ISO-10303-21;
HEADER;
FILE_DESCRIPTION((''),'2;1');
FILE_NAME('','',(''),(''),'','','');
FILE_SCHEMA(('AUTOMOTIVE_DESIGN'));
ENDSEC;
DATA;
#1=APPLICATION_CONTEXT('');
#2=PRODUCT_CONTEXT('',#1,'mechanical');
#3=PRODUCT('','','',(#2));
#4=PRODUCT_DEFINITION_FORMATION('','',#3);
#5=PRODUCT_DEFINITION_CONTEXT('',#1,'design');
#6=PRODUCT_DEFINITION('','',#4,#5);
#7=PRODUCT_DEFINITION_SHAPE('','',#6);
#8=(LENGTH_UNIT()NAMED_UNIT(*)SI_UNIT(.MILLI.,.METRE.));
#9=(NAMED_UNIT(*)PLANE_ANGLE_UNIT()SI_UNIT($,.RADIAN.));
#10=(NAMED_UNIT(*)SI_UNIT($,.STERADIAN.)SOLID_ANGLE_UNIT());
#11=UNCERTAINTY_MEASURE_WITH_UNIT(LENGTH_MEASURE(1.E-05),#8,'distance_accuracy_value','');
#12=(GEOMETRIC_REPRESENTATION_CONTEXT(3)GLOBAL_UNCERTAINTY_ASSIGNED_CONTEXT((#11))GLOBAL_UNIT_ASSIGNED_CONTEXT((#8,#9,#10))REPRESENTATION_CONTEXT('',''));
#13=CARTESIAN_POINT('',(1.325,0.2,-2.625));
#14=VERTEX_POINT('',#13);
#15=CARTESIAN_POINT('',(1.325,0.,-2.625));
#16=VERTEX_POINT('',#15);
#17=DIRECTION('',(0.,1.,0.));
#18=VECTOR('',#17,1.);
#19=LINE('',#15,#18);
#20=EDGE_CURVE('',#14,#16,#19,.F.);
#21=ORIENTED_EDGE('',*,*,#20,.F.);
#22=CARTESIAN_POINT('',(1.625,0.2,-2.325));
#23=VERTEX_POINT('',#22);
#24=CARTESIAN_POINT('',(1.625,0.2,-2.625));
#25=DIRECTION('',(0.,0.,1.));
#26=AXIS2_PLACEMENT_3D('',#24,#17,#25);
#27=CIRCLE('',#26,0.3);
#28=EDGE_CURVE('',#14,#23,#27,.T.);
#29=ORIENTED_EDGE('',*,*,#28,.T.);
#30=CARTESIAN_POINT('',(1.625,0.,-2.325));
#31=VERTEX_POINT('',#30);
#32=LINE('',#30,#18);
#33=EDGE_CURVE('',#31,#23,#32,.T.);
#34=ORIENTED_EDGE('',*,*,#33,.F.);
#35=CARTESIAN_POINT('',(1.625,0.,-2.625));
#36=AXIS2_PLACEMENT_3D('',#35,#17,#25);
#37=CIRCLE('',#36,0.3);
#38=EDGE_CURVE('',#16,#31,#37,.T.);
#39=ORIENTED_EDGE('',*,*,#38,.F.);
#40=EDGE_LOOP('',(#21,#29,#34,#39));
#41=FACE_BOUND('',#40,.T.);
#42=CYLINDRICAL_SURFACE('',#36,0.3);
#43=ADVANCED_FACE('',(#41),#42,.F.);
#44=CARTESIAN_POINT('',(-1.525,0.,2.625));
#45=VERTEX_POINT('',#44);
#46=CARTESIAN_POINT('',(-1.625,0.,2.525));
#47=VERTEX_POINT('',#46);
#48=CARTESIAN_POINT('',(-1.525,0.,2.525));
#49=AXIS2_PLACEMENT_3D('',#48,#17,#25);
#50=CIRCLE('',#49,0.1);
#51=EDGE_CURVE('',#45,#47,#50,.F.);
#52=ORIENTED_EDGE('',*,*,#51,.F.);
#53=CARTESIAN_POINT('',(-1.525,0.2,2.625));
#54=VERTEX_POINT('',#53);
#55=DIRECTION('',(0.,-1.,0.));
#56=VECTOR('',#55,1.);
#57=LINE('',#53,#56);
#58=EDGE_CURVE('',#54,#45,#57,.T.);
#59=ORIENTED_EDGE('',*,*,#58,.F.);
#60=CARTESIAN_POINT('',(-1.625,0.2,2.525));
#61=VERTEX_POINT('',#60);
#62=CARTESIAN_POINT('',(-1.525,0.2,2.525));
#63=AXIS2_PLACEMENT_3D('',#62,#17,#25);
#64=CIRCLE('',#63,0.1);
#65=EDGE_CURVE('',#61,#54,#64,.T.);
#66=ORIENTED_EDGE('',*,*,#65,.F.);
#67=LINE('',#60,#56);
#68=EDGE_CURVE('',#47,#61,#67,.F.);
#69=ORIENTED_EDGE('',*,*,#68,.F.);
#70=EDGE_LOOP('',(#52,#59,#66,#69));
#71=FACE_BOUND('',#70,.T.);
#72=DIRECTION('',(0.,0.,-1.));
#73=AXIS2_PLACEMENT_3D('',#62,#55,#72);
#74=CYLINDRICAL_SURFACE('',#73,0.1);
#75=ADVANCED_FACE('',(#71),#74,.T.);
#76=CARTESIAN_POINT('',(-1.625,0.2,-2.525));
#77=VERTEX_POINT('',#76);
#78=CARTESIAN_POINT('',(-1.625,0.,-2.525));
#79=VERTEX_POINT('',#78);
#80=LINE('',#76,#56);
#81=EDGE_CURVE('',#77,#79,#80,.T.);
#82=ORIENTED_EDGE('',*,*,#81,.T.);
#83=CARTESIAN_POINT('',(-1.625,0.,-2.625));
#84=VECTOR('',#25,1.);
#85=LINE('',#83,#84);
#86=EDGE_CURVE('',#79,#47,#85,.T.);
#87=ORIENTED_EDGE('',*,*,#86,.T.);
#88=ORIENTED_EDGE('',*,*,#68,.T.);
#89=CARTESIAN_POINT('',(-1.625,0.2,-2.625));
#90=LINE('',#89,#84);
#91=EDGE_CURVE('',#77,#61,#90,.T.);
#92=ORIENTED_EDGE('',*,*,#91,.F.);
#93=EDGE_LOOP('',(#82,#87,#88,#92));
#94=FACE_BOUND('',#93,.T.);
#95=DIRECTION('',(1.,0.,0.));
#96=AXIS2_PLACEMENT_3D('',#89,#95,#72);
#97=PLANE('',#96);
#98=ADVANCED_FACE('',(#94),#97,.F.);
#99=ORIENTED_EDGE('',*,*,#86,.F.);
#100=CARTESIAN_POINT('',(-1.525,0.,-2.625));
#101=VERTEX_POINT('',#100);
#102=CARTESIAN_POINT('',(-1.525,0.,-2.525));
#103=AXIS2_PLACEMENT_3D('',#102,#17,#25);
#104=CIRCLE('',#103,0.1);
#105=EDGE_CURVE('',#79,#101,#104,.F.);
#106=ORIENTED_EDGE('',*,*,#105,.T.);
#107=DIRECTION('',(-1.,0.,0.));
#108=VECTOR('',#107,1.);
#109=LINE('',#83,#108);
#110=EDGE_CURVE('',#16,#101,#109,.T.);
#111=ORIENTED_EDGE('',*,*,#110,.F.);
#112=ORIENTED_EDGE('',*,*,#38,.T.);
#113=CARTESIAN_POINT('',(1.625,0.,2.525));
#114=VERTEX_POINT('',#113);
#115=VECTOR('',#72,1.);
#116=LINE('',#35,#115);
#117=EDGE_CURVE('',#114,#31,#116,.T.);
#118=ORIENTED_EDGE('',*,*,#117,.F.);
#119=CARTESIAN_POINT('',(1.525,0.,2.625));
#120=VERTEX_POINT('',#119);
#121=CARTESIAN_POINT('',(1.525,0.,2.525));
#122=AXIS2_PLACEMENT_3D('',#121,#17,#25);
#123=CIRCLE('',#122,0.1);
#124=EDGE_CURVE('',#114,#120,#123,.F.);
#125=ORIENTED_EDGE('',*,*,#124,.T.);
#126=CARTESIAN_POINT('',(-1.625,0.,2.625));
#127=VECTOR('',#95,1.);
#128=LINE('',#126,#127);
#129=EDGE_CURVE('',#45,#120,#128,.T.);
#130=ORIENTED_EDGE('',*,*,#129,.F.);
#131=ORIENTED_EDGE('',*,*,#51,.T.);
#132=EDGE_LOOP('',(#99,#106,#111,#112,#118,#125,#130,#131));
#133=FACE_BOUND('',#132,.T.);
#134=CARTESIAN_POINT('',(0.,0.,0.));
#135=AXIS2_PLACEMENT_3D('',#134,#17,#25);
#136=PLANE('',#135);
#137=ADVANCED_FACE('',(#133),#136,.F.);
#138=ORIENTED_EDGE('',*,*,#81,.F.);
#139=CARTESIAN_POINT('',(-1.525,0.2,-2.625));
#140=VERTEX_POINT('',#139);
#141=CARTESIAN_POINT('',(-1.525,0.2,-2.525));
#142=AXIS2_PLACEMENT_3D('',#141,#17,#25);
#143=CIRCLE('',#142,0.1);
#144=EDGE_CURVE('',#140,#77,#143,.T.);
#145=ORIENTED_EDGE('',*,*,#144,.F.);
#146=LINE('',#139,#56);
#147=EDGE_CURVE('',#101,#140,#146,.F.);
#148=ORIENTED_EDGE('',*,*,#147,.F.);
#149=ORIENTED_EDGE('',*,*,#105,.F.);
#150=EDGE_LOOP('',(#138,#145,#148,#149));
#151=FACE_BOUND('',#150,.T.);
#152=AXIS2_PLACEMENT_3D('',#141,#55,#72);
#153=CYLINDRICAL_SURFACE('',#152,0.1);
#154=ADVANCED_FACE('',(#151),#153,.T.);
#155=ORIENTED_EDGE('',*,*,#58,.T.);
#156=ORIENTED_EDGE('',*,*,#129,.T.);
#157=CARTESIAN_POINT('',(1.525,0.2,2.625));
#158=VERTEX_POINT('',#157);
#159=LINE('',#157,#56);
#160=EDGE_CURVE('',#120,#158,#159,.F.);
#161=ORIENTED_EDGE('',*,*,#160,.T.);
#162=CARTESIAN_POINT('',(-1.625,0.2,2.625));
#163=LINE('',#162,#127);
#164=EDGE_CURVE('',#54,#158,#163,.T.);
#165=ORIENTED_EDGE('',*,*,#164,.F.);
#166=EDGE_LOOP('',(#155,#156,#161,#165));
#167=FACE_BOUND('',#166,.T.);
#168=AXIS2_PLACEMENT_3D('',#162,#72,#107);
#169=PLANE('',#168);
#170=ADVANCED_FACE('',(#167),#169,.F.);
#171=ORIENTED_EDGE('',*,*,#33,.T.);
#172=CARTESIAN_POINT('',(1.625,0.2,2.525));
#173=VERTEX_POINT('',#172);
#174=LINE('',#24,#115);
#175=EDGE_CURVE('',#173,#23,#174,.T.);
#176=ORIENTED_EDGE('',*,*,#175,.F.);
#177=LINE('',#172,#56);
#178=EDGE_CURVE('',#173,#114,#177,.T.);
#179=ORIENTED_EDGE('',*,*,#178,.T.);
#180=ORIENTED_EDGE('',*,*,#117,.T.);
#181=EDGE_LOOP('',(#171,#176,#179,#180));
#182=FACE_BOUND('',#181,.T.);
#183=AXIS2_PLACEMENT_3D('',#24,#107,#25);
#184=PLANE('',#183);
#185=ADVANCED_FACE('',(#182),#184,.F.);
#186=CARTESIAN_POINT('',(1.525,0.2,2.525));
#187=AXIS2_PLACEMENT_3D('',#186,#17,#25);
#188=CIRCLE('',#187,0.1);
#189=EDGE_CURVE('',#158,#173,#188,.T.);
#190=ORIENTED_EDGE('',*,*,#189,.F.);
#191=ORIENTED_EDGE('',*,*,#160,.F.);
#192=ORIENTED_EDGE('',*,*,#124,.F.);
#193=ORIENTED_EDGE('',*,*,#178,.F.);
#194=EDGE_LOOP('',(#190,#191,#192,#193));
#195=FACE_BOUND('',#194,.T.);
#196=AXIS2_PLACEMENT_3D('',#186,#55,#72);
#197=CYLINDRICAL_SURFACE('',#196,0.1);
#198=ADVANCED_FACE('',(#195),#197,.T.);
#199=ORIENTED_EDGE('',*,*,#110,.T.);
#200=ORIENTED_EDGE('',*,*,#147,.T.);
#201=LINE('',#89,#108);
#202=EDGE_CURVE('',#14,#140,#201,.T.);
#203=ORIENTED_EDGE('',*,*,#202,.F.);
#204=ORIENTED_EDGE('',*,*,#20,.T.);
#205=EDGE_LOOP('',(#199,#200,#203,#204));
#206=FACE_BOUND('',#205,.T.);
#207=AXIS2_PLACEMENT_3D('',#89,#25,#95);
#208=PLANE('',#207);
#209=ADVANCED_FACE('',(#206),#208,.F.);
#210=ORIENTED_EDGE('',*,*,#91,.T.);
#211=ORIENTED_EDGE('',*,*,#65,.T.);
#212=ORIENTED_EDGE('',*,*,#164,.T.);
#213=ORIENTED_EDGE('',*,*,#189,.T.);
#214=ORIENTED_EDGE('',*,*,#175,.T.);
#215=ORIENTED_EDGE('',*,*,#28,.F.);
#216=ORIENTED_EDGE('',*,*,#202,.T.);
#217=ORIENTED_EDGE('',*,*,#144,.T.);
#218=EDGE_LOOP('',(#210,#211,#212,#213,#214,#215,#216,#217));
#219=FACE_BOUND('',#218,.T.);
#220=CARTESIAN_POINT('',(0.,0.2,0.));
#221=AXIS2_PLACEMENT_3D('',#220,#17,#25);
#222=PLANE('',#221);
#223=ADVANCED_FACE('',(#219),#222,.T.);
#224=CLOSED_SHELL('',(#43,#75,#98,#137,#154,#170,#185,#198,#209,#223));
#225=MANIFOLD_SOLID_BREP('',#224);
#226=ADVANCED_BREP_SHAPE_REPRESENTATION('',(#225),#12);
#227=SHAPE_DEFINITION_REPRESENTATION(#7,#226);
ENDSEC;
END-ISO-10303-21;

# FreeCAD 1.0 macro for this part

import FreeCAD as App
import Part
import Sketcher
from FreeCAD import Vector


def edges_at(feature, points):
    """Names of the edges that pass closest to the given points."""
    edges = feature.Shape.Edges
    near = lambda p: min(range(len(edges)), key=lambda i: edges[i].distToShape(Part.Vertex(*p))[0])
    return sorted({f"Edge{near(p) + 1}" for p in points})

doc = App.newDocument("Part")
body = doc.addObject("PartDesign::Body", "Body")

# Sketch on XZ plane
sketch1 = body.newObject("Sketcher::SketchObject", "Sketch")
sketch1.AttachmentSupport = (doc.getObject("XZ_Plane"), [""])
sketch1.MapMode = "FlatFace"
sketch1.addGeometry(Part.LineSegment(Vector(-1.6, -2.6, 0), Vector(-1.6, 2.6, 0)), False)
sketch1.addGeometry(Part.LineSegment(Vector(-1.6, 2.6, 0), Vector(1.6, 2.6, 0)), False)
sketch1.addGeometry(Part.LineSegment(Vector(1.6, 2.6, 0), Vector(1.6, -2.6, 0)), False)
sketch1.addGeometry(Part.LineSegment(Vector(1.6, -2.6, 0), Vector(-1.6, -2.6, 0)), False)
sketch1.addConstraint(Sketcher.Constraint("Coincident", 0, 2, 1, 1))
sketch1.addConstraint(Sketcher.Constraint("Coincident", 1, 2, 2, 1))
sketch1.addConstraint(Sketcher.Constraint("Coincident", 2, 2, 3, 1))
sketch1.addConstraint(Sketcher.Constraint("Coincident", 3, 2, 0, 1))
sketch1.addConstraint(Sketcher.Constraint("Vertical", 0))
sketch1.addConstraint(Sketcher.Constraint("Horizontal", 1))
sketch1.addConstraint(Sketcher.Constraint("Vertical", 2))
sketch1.addConstraint(Sketcher.Constraint("Horizontal", 3))
sketch1.addConstraint(Sketcher.Constraint("Symmetric", 0, 2, 2, 2, -1, 1))
sketch1.addConstraint(Sketcher.Constraint("DistanceX", 1, 1, 1, 2, 3.25))
sketch1.addConstraint(Sketcher.Constraint("DistanceY", 0, 1, 0, 2, 5.25))
pad1 = body.newObject("PartDesign::Pad", "Pad")
pad1.Profile = sketch1
pad1.Length = 0.2
pad1.Reversed = True

# Sketch on XZ plane
sketch2 = body.newObject("Sketcher::SketchObject", "Sketch001")
sketch2.AttachmentSupport = (doc.getObject("XZ_Plane"), [""])
sketch2.MapMode = "FlatFace"
sketch2.AttachmentOffset = App.Placement(Vector(0, 0, -0.2), App.Rotation())
sketch2.addGeometry(Part.Circle(Vector(1.62, -2.62, 0), Vector(0, 0, 1), 0.3), False)
sketch2.addConstraint(Sketcher.Constraint("Diameter", 0, 0.6))
sketch2.addConstraint(Sketcher.Constraint("DistanceX", -1, 1, 0, 3, 1.625))
sketch2.addConstraint(Sketcher.Constraint("DistanceY", 0, 3, -1, 1, 2.625))
pocket1 = body.newObject("PartDesign::Pocket", "Pocket")
pocket1.Profile = sketch2
pocket1.Type = "ThroughAll"
pocket1.Reversed = True
doc.recompute()

fillet = body.newObject("PartDesign::Fillet", "Fillet")
fillet.Base = (pocket1, edges_at(pocket1, [(1.625, 0.1, 2.625), (-1.625, 0.1, 2.625), (-1.625, 0.1, -2.625)]))
fillet.Radius = 0.1

doc.recompute()
